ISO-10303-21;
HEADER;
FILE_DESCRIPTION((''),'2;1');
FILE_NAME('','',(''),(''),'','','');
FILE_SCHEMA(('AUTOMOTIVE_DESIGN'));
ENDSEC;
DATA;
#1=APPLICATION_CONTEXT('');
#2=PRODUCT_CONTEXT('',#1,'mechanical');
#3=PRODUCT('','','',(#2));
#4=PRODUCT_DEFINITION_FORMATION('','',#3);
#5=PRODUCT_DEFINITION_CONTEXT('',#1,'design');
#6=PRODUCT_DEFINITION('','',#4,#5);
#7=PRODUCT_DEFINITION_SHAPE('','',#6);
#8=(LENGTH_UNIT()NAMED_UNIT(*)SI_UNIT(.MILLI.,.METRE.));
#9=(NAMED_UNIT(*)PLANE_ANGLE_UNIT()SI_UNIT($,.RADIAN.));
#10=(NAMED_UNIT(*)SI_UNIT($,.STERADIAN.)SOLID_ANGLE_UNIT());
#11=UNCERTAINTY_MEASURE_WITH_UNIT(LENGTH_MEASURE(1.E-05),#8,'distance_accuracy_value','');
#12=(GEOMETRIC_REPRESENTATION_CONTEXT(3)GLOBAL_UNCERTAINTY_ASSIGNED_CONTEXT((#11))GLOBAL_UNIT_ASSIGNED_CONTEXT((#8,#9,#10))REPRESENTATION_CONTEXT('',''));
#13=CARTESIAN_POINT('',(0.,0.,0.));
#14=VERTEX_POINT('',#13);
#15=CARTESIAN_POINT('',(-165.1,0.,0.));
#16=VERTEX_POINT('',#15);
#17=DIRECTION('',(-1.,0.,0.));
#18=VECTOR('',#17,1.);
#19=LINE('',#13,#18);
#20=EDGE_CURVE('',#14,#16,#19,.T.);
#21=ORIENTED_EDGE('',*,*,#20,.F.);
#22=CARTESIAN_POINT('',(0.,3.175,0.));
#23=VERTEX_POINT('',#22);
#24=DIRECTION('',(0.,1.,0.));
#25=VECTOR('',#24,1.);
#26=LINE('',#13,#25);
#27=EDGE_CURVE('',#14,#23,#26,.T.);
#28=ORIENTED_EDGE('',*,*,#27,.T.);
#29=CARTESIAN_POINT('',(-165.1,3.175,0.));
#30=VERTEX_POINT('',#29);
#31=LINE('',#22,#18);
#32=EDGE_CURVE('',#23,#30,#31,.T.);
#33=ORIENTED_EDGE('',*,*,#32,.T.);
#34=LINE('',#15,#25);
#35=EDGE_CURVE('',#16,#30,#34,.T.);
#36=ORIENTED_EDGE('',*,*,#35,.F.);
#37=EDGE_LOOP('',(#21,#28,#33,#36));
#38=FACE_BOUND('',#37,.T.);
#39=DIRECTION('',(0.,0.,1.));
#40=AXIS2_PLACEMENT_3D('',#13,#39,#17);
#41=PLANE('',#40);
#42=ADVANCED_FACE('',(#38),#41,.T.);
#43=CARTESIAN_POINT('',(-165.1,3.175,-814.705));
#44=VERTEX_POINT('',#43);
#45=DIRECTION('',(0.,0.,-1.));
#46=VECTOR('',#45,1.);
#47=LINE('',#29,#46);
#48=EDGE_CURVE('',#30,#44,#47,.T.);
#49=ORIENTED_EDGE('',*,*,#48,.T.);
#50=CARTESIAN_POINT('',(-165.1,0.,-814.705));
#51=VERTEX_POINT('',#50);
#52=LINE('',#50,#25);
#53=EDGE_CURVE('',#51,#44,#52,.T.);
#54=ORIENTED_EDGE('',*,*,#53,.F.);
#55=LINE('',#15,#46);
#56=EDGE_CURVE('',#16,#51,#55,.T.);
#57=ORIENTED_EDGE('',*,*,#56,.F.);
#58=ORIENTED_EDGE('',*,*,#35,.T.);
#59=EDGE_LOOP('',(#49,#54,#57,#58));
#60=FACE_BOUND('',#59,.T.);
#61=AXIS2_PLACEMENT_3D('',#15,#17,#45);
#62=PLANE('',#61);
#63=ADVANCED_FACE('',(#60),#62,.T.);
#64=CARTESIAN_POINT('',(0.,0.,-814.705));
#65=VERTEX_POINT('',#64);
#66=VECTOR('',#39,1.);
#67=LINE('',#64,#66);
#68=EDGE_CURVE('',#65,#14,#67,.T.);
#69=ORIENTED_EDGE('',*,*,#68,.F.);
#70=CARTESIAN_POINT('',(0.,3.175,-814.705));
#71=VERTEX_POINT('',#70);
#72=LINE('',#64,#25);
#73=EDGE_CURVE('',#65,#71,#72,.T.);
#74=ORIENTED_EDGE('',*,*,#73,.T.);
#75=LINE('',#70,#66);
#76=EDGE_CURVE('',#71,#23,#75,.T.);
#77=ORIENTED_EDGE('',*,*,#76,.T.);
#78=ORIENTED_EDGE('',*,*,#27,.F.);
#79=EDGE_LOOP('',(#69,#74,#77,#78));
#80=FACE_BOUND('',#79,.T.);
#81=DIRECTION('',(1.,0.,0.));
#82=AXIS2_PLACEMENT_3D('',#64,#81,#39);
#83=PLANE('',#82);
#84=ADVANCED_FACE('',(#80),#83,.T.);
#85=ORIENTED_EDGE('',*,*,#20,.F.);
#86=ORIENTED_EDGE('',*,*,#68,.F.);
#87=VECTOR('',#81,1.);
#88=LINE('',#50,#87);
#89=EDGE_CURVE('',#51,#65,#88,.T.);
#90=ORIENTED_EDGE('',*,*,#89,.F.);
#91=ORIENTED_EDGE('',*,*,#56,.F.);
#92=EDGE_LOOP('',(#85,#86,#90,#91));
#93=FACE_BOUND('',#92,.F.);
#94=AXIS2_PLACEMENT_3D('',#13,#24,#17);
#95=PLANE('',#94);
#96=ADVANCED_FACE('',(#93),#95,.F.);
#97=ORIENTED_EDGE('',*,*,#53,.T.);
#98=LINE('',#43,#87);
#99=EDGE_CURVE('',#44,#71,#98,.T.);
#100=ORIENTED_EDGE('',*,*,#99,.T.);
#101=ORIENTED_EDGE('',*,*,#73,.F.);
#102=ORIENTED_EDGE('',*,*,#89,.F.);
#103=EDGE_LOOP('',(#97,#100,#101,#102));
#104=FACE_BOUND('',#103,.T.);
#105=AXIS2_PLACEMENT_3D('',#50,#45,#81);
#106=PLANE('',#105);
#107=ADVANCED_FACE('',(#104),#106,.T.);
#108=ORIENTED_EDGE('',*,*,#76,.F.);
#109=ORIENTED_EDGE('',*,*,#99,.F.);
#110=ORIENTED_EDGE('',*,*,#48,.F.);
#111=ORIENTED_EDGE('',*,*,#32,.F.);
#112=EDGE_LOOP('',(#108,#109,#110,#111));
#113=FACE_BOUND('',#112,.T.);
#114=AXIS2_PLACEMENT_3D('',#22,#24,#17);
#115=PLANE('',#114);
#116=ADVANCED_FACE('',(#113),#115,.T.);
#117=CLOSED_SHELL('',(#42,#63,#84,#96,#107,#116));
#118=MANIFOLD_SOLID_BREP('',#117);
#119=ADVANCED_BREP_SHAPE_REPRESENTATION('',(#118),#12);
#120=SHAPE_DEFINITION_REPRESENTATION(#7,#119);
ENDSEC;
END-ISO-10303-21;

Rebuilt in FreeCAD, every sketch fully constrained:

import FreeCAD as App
import Part
import Sketcher
Q = App.Units.Quantity

doc = App.newDocument("Part")
body = doc.addObject("PartDesign::Body", "Body")

# Sketch on XZ plane
sketch1 = body.newObject("Sketcher::SketchObject", "Sketch")
sketch1.AttachmentSupport = (doc.getObject("XZ_Plane"), [""])
sketch1.MapMode = "FlatFace"
sketch1.addGeometry([
    Part.LineSegment(App.Vector(-165.1, 0, 0), App.Vector(0, 0, 0)),
    Part.LineSegment(App.Vector(0, 0, 0), App.Vector(0, -814.705, 0)),
    Part.LineSegment(App.Vector(0, -814.705, 0), App.Vector(-165.1, -814.705, 0)),
    Part.LineSegment(App.Vector(-165.1, -814.705, 0), App.Vector(-165.1, 0, 0)),
], False)
sketch1.addConstraint([
    Sketcher.Constraint("Coincident", 0, 2, 1, 1),
    Sketcher.Constraint("Coincident", 1, 2, 2, 1),
    Sketcher.Constraint("Coincident", 2, 2, 3, 1),
    Sketcher.Constraint("Coincident", 3, 2, 0, 1),
    Sketcher.Constraint("Horizontal", 0),
    Sketcher.Constraint("Vertical", 1),
    Sketcher.Constraint("Horizontal", 2),
    Sketcher.Constraint("Vertical", 3),
    Sketcher.Constraint("Coincident", 0, 2, -1, 1),
    Sketcher.Constraint("DistanceX", 0, 1, 0, 2, Q("6.5 in")),
    Sketcher.Constraint("DistanceY", 1, 2, 1, 1, Q("32.075 in")),
])
pad1 = body.newObject("PartDesign::Pad", "Pad")
pad1.Profile = sketch1
pad1.Length = Q("0.125 in")
pad1.Reversed = True

doc.recompute()
